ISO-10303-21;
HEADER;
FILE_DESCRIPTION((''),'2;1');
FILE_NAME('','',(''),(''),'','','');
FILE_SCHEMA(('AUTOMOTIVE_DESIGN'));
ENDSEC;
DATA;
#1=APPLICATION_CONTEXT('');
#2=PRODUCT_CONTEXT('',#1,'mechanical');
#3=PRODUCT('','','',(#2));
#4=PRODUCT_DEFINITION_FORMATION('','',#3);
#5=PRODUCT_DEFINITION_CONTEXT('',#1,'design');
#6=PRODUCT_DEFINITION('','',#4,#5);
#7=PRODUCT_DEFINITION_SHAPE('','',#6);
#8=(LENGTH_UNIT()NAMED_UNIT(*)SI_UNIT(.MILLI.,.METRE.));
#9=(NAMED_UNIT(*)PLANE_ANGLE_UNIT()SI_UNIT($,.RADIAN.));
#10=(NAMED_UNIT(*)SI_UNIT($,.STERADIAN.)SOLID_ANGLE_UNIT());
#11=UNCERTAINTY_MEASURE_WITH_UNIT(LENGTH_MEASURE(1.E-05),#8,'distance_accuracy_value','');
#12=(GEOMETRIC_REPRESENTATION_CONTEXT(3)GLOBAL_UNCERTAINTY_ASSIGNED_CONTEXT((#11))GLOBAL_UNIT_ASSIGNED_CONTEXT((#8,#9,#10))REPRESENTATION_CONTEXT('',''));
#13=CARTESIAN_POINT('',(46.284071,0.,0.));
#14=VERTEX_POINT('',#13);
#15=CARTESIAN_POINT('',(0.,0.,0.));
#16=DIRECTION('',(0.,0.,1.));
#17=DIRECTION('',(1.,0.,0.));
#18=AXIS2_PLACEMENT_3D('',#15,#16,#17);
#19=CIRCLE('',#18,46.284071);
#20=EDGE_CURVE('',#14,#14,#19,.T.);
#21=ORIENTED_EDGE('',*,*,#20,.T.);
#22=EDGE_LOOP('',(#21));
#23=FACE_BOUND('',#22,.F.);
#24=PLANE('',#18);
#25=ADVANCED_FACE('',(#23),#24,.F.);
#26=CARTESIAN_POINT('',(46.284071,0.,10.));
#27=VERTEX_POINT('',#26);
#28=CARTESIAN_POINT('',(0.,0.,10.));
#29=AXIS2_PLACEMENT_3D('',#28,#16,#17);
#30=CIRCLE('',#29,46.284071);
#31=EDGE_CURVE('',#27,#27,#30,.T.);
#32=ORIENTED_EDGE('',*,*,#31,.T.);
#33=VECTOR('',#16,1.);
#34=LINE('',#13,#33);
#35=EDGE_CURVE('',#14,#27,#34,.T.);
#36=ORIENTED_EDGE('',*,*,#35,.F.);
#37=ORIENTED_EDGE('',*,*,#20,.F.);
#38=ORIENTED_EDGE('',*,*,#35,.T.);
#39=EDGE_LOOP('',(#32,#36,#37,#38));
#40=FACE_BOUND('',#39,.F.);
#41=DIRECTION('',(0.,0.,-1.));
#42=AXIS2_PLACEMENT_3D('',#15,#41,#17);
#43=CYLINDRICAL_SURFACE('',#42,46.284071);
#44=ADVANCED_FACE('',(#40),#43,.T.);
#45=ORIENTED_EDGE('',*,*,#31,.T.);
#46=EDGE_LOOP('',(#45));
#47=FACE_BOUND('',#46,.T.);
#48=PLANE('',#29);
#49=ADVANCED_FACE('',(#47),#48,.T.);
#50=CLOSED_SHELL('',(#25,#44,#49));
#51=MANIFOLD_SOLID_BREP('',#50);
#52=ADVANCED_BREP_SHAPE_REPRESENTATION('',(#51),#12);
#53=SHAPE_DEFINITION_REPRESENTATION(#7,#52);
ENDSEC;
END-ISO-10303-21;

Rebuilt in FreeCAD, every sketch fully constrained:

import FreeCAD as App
import Part
import Sketcher
from FreeCAD import Vector
Q = App.Units.Quantity

doc = App.newDocument("Part")
body = doc.addObject("PartDesign::Body", "Body")

sketch1 = body.newObject("Sketcher::SketchObject", "Sketch")
sketch1.AttachmentSupport = (doc.getObject("XY_Plane"), [""])
sketch1.MapMode = "FlatFace"
sketch1.addGeometry(Part.Circle(Vector(0, 0, 0), Vector(0, 0, 1), 46), False)
sketch1.addConstraint(Sketcher.Constraint("Coincident", 0, 3, -1, 1))
sketch1.addConstraint(Sketcher.Constraint("Diameter", 0, Q("92.568142 mm")))
pad1 = body.newObject("PartDesign::Pad", "Pad")
pad1.Profile = sketch1
pad1.Length = 10

doc.recompute()
